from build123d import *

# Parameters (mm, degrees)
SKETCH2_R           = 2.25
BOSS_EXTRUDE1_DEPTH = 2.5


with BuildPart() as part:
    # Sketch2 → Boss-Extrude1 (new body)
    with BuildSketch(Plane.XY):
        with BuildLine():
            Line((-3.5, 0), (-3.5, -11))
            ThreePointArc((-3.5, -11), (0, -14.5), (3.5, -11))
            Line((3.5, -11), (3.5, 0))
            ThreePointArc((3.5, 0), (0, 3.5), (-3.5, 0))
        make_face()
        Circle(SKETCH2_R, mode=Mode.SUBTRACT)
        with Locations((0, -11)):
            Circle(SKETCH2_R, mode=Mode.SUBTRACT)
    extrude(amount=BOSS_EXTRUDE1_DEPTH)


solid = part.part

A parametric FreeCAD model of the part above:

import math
import FreeCAD as App
import Part
import Sketcher

V = App.Vector
Q = App.Units.Quantity

doc = App.newDocument("Part")
params = doc.addObject("Spreadsheet::Sheet", "Params")
for row, (alias, value) in enumerate([
    ("sketch1_diameter", "4.5 mm"),
    ("sketch1_radius", "3.5 mm"),
    ("sketch1_height", "11 mm"),
    ("pad1_length", "2.5 mm"),
], start=1):
    params.set(f"A{row}", alias)
    params.set(f"B{row}", "=" + value)
    params.setAlias(f"B{row}", alias)

body = doc.addObject("PartDesign::Body", "Body")

# Sketch on XY plane
sketch1 = body.newObject("Sketcher::SketchObject", "Sketch")
sketch1.AttachmentSupport = (doc.getObject("XY_Plane"), [""])
sketch1.MapMode = "FlatFace"
sketch1.addGeometry([
    Part.LineSegment(V(-3.5, 0, 0), V(-3.5, -11, 0)),  # 0
    Part.ArcOfCircle(Part.Circle(V(0, -11, 0), V(0, 0, 1), 3.5), math.radians(180), math.radians(360)),  # 1
    Part.LineSegment(V(3.5, -11, 0), V(3.5, 0, 0)),  # 2
    Part.ArcOfCircle(Part.Circle(V(0, 0, 0), V(0, 0, 1), 3.5), math.radians(0), math.radians(180)),  # 3
    Part.Circle(V(0, -11, 0), V(0, 0, 1), 2.25),  # 4
    Part.Circle(V(0, 0, 0), V(0, 0, 1), 2.25),  # 5
], False)
sketch1.addConstraint([
    Sketcher.Constraint("Tangent", 0, 2, 1, 1),
    Sketcher.Constraint("Tangent", 1, 2, 2, 1),
    Sketcher.Constraint("Tangent", 2, 2, 3, 1),
    Sketcher.Constraint("Tangent", 3, 2, 0, 1),
    Sketcher.Constraint("Vertical", 0),
    Sketcher.Constraint("Vertical", 2),
    Sketcher.Constraint("Coincident", 3, 3, -1, 1),
    Sketcher.Constraint("Coincident", 5, 3, -1, 1),
    Sketcher.Constraint("Coincident", 4, 3, 1, 3),
    Sketcher.Constraint("Equal", 4, 5),
    Sketcher.Constraint("Diameter", 4, Q("4.5 mm")),
    Sketcher.Constraint("Radius", 1, Q("3.5 mm")),
    Sketcher.Constraint("DistanceY", 0, 2, 0, 1, Q("11 mm")),
])
sketch1.setExpression("Constraints[10]", "Params.sketch1_diameter")
sketch1.setExpression("Constraints[11]", "Params.sketch1_radius")
sketch1.setExpression("Constraints[12]", "Params.sketch1_height")
pad1 = body.newObject("PartDesign::Pad", "Pad")
pad1.Profile = sketch1
pad1.setExpression("Length", "Params.pad1_length")

doc.recompute()
